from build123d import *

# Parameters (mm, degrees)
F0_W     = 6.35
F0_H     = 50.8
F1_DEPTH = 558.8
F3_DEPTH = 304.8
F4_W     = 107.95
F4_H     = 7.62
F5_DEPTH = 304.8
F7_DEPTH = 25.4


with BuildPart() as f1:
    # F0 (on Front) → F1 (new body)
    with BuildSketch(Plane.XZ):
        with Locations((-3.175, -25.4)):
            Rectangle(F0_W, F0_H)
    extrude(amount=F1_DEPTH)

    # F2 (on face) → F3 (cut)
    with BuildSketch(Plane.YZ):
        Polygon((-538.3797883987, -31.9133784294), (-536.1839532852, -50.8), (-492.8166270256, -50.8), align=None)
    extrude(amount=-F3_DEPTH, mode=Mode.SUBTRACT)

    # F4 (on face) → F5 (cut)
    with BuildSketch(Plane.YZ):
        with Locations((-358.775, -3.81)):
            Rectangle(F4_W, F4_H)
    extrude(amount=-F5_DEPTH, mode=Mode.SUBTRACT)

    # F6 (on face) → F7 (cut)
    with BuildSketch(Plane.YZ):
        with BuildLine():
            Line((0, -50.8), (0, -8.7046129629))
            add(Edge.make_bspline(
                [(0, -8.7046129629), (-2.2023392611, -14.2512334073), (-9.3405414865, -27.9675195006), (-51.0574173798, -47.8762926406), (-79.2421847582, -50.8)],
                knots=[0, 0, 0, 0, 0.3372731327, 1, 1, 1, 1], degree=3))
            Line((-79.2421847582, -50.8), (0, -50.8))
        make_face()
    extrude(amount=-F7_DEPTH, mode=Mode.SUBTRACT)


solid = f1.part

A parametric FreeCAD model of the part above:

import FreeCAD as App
import Part
import Sketcher

V = App.Vector
Q = App.Units.Quantity


def add_polygon(sketch, points):
    """Adds a closed chain of lines whose ends are joined by coincident constraints."""
    first, n = sketch.GeometryCount, len(points)
    for a, b in zip(points, points[1:] + points[:1]):
        sketch.addGeometry(Part.LineSegment(App.Vector(*a, 0), App.Vector(*b, 0)), False)
    for i in range(n):
        sketch.addConstraint(Sketcher.Constraint("Coincident", first + i, 2, first + (i + 1) % n, 1))

doc = App.newDocument("Part")
body = doc.addObject("PartDesign::Body", "Body")

sketch1 = body.newObject("Sketcher::SketchObject", "Sketch")
sketch1.AttachmentSupport = (doc.getObject("XZ_Plane"), [""])
sketch1.MapMode = "FlatFace"
add_polygon(sketch1, [(-6, 0), (-6, -51), (0, -51), (0, 0)])
sketch1.addConstraint([
    Sketcher.Constraint("Vertical", 0),
    Sketcher.Constraint("Horizontal", 1),
    Sketcher.Constraint("Vertical", 2),
    Sketcher.Constraint("Horizontal", 3),
    Sketcher.Constraint("Coincident", 2, 2, -1, 1),
    Sketcher.Constraint("DistanceY", 0, 2, 0, 1, Q("2 in")),
    Sketcher.Constraint("DistanceX", 1, 1, 1, 2, Q("0.25 in")),
])
pad1 = body.newObject("PartDesign::Pad", "Pad")
pad1.Profile = sketch1
pad1.Length = Q("22 in")

sketch2 = body.newObject("Sketcher::SketchObject", "Sketch001")
sketch2.AttachmentSupport = (doc.getObject("YZ_Plane"), [""])
sketch2.MapMode = "FlatFace"
add_polygon(sketch2, [(-538, -32), (-536, -51), (-493, -51)])
sketch2.addConstraint([
    Sketcher.Constraint("Horizontal", 1),
    Sketcher.Constraint("DistanceY", 0, 2, -1, 1, Q("2 in")),
    Sketcher.Constraint("Distance", 0, Q("19.013841 mm")),
    Sketcher.Constraint("Distance", 2, Q("49.322471 mm")),
    Sketcher.Constraint("DistanceX", 1, 1, 1, 2, Q("43.367326 mm")),
    Sketcher.Constraint("DistanceX", 2, 2, -1, 1, Q("538.379788 mm")),
])
pocket1 = body.newObject("PartDesign::Pocket", "Pocket")
pocket1.Profile = sketch2
pocket1.Length = Q("12 in")

sketch3 = body.newObject("Sketcher::SketchObject", "Sketch002")
sketch3.AttachmentSupport = (doc.getObject("YZ_Plane"), [""])
sketch3.MapMode = "FlatFace"
add_polygon(sketch3, [(-413, 0), (-413, -8), (-305, -8), (-305, 0)])
sketch3.addConstraint([
    Sketcher.Constraint("Vertical", 0),
    Sketcher.Constraint("Horizontal", 1),
    Sketcher.Constraint("Vertical", 2),
    Sketcher.Constraint("Horizontal", 3),
    Sketcher.Constraint("PointOnObject", 2, 2, -1),
    Sketcher.Constraint("DistanceY", 0, 2, 0, 1, Q("0.3 in")),
    Sketcher.Constraint("DistanceX", 1, 2, -1, 1, Q("12 in")),
    Sketcher.Constraint("DistanceX", 1, 1, 1, 2, Q("4.25 in")),
])
pocket2 = body.newObject("PartDesign::Pocket", "Pocket001")
pocket2.Profile = sketch3
pocket2.Length = Q("12 in")

sketch4 = body.newObject("Sketcher::SketchObject", "Sketch003")
sketch4.AttachmentSupport = (doc.getObject("YZ_Plane"), [""])
sketch4.MapMode = "FlatFace"
sketch4.addGeometry([
    Part.LineSegment(V(0, -50.8, 0), V(0, -8.704613, 0)),
    Part.BSplineCurve([V(0, -8.704613, 0), V(-2.202339, -14.251233, 0), V(-9.340541, -27.96752, 0), V(-51.057417, -47.876293, 0), V(-79.242185, -50.8, 0)], [4, 1, 4], [0, 0.337273133, 1], False, 3, [1, 1, 1, 1, 1], False),
    Part.LineSegment(V(-79.242185, -50.8, 0), V(0, -50.8, 0)),
], False)
sketch4.addConstraint([
    Sketcher.Constraint("Block", 1),
    Sketcher.Constraint("Coincident", 0, 2, 1, 1),
    Sketcher.Constraint("Coincident", 1, 2, 2, 1),
    Sketcher.Constraint("Coincident", 2, 2, 0, 1),
    Sketcher.Constraint("Vertical", 0),
    Sketcher.Constraint("Horizontal", 2),
])
pocket3 = body.newObject("PartDesign::Pocket", "Pocket002")
pocket3.Profile = sketch4
pocket3.Length = Q("1 in")

doc.recompute()
